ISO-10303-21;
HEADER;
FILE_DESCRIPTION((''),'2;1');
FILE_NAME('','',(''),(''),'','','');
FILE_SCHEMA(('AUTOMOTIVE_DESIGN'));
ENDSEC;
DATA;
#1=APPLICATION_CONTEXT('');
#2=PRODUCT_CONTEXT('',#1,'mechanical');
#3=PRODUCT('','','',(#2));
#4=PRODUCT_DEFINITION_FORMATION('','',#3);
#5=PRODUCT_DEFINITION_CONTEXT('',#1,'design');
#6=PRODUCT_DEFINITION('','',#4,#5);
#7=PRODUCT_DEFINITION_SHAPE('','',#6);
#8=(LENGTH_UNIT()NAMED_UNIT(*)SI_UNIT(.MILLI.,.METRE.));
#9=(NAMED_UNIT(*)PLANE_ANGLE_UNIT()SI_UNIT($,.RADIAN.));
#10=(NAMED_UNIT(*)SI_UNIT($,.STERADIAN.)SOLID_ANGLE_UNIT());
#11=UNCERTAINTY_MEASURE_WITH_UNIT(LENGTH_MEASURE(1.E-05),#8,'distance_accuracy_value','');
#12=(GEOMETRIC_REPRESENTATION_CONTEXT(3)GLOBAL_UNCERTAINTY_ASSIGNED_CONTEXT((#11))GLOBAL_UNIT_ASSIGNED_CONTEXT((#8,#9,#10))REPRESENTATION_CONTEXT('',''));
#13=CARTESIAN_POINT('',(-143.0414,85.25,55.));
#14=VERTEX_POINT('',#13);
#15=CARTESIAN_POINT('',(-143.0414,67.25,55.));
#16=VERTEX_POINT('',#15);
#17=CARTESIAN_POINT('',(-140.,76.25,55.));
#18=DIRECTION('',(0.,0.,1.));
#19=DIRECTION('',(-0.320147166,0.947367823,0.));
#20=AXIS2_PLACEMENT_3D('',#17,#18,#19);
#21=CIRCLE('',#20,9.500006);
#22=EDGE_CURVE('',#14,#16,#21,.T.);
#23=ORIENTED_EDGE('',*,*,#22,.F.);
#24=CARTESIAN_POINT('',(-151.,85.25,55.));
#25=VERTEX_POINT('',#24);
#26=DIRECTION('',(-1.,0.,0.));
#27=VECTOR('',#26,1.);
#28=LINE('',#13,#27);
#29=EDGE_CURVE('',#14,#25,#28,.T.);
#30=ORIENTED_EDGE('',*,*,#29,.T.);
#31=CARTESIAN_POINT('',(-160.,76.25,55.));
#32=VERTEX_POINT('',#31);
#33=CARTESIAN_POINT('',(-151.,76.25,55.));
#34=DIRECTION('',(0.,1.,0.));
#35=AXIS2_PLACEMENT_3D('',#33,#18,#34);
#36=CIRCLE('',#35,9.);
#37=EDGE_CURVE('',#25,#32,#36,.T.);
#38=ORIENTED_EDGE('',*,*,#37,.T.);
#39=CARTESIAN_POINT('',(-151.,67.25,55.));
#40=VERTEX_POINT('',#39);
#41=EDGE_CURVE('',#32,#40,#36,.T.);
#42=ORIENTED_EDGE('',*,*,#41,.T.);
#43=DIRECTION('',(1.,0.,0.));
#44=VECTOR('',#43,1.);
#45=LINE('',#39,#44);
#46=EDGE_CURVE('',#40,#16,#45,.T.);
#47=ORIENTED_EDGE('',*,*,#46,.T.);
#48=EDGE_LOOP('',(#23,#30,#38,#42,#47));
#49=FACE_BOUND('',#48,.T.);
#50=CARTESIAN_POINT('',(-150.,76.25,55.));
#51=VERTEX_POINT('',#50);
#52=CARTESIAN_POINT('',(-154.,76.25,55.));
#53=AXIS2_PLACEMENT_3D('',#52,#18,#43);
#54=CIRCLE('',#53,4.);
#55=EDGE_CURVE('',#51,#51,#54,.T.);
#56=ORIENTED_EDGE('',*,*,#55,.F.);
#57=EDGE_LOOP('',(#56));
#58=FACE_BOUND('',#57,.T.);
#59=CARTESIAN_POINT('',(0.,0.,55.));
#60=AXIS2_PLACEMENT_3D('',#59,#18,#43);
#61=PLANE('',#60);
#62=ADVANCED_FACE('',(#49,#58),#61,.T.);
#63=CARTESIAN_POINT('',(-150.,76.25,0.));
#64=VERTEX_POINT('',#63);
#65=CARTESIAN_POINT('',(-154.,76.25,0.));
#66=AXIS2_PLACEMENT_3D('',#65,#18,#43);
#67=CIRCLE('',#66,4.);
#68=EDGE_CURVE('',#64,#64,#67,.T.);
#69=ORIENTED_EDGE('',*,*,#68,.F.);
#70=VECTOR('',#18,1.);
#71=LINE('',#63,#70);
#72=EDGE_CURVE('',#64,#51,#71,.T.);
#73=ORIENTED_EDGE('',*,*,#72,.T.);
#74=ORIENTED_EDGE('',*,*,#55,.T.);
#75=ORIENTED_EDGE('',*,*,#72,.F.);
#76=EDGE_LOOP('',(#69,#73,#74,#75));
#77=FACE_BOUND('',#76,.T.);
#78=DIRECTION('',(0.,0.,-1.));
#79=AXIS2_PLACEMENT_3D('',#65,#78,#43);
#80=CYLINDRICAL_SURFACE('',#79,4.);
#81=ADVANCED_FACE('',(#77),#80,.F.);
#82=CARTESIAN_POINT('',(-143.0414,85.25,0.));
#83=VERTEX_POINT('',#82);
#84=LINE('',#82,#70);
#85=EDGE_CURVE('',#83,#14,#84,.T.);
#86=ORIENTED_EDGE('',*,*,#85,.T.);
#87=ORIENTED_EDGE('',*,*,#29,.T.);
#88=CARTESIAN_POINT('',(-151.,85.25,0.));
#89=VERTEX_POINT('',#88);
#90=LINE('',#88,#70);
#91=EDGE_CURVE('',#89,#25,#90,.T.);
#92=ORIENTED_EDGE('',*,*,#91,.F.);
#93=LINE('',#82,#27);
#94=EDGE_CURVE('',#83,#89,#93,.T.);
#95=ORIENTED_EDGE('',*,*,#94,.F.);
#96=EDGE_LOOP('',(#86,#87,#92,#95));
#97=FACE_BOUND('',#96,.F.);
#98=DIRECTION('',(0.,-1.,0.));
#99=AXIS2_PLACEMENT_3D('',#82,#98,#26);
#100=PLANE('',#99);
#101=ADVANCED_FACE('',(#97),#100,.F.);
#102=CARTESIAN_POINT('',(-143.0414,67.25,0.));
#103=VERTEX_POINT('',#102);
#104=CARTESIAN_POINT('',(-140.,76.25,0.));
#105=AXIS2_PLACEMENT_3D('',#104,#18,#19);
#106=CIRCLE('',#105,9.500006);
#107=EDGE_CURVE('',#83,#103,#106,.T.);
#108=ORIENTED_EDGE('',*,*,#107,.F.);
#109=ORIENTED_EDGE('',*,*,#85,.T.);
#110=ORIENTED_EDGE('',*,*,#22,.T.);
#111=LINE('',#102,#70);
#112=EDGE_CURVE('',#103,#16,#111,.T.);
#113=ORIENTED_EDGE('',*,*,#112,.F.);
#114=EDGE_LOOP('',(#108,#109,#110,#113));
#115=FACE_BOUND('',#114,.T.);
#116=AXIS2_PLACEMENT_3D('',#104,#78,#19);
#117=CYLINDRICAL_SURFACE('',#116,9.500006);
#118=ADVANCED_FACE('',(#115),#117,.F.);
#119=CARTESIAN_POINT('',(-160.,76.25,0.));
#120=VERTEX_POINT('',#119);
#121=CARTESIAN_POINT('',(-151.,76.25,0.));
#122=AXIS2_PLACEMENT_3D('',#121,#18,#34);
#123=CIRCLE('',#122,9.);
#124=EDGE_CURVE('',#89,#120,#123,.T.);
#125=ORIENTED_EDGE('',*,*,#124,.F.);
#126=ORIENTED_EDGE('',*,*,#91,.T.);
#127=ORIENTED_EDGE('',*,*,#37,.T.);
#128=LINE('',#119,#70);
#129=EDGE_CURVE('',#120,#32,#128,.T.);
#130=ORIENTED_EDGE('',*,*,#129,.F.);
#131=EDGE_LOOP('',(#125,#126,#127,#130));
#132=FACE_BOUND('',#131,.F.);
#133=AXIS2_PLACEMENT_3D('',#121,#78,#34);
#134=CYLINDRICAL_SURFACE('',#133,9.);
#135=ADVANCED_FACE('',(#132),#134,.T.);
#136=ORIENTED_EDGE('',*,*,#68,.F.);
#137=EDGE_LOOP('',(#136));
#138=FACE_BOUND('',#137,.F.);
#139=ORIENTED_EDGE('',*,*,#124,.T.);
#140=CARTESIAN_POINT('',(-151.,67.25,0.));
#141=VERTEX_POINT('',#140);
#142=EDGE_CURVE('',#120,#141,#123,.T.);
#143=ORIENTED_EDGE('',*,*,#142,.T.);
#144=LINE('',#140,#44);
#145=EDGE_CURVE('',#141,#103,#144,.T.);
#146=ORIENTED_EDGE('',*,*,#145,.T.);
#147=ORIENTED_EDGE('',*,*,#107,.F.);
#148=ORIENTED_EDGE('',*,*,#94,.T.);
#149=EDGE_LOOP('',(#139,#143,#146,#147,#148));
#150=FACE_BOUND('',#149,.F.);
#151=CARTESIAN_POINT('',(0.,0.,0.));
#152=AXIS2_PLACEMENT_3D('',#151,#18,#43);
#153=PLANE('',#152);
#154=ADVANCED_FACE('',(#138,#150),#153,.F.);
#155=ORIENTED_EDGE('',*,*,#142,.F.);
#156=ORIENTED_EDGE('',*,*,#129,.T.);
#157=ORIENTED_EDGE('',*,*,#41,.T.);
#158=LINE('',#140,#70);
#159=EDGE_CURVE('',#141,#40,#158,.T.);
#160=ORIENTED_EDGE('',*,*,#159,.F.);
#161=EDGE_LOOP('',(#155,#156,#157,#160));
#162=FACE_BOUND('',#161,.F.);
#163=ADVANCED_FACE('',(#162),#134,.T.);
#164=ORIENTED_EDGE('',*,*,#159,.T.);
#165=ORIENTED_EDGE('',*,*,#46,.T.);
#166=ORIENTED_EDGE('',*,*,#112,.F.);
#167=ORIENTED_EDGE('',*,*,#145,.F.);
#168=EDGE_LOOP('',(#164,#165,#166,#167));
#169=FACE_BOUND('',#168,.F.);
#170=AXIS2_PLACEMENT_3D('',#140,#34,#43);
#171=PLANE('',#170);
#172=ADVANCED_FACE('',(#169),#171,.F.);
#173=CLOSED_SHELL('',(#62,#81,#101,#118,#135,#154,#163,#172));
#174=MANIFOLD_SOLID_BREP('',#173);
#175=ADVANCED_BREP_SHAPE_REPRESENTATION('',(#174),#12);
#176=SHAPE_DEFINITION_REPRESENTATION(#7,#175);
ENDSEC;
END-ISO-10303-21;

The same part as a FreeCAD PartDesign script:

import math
import FreeCAD as App
import Part
import Sketcher
Q = App.Units.Quantity

doc = App.newDocument("Part")
body = doc.addObject("PartDesign::Body", "Body")

# Sketch on XY plane
sketch1 = body.newObject("Sketcher::SketchObject", "Sketch")
sketch1.AttachmentSupport = (doc.getObject("XY_Plane"), [""])
sketch1.MapMode = "FlatFace"
sketch1.addGeometry(Part.ArcOfCircle(Part.Circle(App.Vector(-151, 76.25, 0), App.Vector(0, 0, 1), 9), math.radians(90), math.radians(270)), False)
sketch1.addGeometry(Part.LineSegment(App.Vector(-151, 67.25, 0), App.Vector(-143.0414, 67.25, 0)), False)
sketch1.addGeometry(Part.ArcOfCircle(Part.Circle(App.Vector(-140, 76.25, 0), App.Vector(0, 0, 1), 9.500006), math.radians(108.671825), math.radians(251.328175)), False)
sketch1.addGeometry(Part.LineSegment(App.Vector(-143.0414, 85.25, 0), App.Vector(-151, 85.25, 0)), False)
sketch1.addGeometry(Part.Circle(App.Vector(-154, 76.25, 0), App.Vector(0, 0, 1), 4), False)
sketch1.addConstraint(Sketcher.Constraint("Tangent", 0, 2, 1, 1))
sketch1.addConstraint(Sketcher.Constraint("Coincident", 1, 2, 2, 2))
sketch1.addConstraint(Sketcher.Constraint("Coincident", 2, 1, 3, 1))
sketch1.addConstraint(Sketcher.Constraint("Tangent", 3, 2, 0, 1))
sketch1.addConstraint(Sketcher.Constraint("Horizontal", 1))
sketch1.addConstraint(Sketcher.Constraint("Horizontal", 3))
sketch1.addConstraint(Sketcher.Constraint("Horizontal", 0, 3, 2, 3))
sketch1.addConstraint(Sketcher.Constraint("Horizontal", 2, 3, 4, 3))
sketch1.addConstraint(Sketcher.Constraint("Diameter", 4, Q("8 mm")))
sketch1.addConstraint(Sketcher.Constraint("Radius", 0, Q("9 mm")))
sketch1.addConstraint(Sketcher.Constraint("Radius", 2, Q("9.5 mm")))
sketch1.addConstraint(Sketcher.Constraint("DistanceX", 0, 3, -1, 1, Q("151 mm")))
sketch1.addConstraint(Sketcher.Constraint("DistanceX", 2, 3, -1, 1, Q("140 mm")))
sketch1.addConstraint(Sketcher.Constraint("DistanceX", 4, 3, -1, 1, Q("154 mm")))
sketch1.addConstraint(Sketcher.Constraint("DistanceY", -1, 1, 0, 3, Q("76.25 mm")))
pad1 = body.newObject("PartDesign::Pad", "Pad")
pad1.Profile = sketch1
pad1.Length = 55

doc.recompute()
